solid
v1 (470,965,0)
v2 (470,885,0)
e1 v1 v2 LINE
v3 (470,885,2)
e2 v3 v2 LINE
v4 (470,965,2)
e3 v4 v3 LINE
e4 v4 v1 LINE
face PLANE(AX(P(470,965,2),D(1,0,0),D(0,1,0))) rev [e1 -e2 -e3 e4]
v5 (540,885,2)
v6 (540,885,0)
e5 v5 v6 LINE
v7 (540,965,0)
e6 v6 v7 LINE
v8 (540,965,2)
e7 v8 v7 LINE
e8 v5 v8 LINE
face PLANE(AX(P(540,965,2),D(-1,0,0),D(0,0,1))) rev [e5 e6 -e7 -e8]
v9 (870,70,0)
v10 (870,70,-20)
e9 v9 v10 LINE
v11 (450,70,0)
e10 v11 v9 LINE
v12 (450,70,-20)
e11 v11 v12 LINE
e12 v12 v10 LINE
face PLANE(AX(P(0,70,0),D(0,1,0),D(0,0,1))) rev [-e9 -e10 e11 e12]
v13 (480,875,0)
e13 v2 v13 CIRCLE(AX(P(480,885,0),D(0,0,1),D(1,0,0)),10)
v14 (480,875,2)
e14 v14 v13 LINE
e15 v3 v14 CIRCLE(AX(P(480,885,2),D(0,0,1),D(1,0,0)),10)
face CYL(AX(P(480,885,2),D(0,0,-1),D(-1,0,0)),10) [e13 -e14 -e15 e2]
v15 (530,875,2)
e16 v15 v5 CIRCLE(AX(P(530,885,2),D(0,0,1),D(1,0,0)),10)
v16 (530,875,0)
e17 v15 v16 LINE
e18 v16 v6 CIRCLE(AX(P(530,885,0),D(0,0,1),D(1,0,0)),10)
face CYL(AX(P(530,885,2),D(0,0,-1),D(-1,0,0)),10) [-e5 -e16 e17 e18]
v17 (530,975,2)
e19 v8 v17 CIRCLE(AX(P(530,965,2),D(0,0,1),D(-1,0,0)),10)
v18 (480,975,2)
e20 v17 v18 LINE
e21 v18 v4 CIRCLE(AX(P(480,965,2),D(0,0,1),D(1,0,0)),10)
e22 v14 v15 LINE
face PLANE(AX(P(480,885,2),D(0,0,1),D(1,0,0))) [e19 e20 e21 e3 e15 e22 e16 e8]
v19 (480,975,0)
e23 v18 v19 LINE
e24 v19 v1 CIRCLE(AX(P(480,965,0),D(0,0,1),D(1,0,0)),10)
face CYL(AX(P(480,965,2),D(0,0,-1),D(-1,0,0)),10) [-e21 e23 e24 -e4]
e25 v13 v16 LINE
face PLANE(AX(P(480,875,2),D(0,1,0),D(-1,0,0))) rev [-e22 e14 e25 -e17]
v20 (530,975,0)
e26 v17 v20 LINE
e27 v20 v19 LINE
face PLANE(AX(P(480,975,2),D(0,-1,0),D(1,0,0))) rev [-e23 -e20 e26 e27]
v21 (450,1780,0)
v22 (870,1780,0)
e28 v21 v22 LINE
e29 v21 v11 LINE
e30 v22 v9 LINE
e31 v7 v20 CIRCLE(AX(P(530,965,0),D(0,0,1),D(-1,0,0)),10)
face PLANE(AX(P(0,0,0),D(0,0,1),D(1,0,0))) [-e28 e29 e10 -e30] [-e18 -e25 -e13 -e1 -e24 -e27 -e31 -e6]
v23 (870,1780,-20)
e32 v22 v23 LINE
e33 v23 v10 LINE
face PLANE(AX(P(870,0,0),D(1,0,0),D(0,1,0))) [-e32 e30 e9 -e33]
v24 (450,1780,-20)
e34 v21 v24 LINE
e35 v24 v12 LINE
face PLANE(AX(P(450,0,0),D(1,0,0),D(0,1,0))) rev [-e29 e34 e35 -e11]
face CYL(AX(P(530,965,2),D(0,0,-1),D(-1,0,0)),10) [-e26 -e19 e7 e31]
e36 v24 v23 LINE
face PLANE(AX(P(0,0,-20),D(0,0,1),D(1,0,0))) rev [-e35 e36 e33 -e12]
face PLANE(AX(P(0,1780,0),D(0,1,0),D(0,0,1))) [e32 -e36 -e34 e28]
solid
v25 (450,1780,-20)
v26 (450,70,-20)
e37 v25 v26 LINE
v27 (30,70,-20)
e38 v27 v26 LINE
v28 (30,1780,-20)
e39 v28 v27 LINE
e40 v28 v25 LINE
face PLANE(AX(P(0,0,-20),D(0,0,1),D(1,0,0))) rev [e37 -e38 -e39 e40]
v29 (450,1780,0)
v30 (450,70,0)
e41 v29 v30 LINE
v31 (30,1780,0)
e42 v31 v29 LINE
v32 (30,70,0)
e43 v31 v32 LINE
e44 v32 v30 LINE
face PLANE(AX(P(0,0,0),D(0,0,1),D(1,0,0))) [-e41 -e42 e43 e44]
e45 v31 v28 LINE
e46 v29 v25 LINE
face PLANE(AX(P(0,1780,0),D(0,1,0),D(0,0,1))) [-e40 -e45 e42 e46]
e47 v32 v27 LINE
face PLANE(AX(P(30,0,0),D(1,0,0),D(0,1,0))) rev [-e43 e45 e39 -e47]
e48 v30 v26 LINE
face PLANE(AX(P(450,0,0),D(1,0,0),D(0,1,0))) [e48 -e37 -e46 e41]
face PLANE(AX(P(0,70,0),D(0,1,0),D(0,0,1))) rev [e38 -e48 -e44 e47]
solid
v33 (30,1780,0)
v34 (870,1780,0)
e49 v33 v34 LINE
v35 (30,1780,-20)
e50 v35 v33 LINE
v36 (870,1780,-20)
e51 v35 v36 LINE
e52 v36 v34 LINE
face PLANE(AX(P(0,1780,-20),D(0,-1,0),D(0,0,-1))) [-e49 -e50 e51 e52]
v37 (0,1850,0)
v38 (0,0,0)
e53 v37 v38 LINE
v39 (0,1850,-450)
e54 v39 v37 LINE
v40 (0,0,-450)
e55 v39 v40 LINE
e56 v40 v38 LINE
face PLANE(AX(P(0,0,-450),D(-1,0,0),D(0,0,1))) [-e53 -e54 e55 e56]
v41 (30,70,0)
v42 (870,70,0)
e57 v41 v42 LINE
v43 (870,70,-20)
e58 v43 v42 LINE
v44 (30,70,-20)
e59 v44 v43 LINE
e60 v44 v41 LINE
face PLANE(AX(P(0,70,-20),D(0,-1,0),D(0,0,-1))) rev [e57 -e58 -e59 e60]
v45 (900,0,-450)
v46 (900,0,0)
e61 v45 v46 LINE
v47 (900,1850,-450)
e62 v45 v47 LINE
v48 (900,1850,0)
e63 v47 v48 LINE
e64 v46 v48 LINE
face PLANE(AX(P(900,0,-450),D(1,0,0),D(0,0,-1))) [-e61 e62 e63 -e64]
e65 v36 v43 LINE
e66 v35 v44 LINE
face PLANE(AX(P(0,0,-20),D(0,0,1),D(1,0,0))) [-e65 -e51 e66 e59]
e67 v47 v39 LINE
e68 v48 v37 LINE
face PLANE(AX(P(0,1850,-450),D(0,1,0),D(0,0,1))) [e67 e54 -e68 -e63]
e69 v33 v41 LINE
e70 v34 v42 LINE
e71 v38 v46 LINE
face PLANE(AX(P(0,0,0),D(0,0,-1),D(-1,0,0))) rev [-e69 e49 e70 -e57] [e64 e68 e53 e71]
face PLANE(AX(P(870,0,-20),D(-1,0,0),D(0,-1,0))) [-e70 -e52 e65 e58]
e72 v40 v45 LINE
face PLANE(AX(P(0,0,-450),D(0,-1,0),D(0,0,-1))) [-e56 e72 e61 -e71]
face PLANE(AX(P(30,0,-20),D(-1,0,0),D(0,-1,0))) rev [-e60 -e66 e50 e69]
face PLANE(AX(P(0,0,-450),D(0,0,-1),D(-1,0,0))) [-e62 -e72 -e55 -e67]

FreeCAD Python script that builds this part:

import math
import FreeCAD as App
import Part
import Sketcher


def add_polygon(sketch, points):
    """Adds a closed chain of lines whose ends are joined by coincident constraints."""
    first, n = sketch.GeometryCount, len(points)
    for a, b in zip(points, points[1:] + points[:1]):
        sketch.addGeometry(Part.LineSegment(App.Vector(*a, 0), App.Vector(*b, 0)), False)
    for i in range(n):
        sketch.addConstraint(Sketcher.Constraint("Coincident", first + i, 2, first + (i + 1) % n, 1))

doc = App.newDocument("Part")
body = doc.addObject("PartDesign::Body", "Body")

# Sketch on XY plane
sketch1 = body.newObject("Sketcher::SketchObject", "Sketch")
sketch1.AttachmentSupport = (doc.getObject("XY_Plane"), [""])
sketch1.MapMode = "FlatFace"
add_polygon(sketch1, [(0, 1850), (0, 0), (900, 0), (900, 1850)])  # lines 0-3
sketch1.addConstraint(Sketcher.Constraint("Vertical", 0))
sketch1.addConstraint(Sketcher.Constraint("Horizontal", 1))
sketch1.addConstraint(Sketcher.Constraint("Vertical", 2))
sketch1.addConstraint(Sketcher.Constraint("Horizontal", 3))
sketch1.addConstraint(Sketcher.Constraint("Coincident", 0, 2, -1, 1))
sketch1.addConstraint(Sketcher.Constraint("DistanceX", 1, 1, 1, 2, 900.0))
sketch1.addConstraint(Sketcher.Constraint("DistanceY", 0, 2, 0, 1, 1850.0))
pad1 = body.newObject("PartDesign::Pad", "Pad")
pad1.Profile = sketch1
pad1.Length = 450
pad1.Reversed = True

# Sketch on XY plane
sketch2 = body.newObject("Sketcher::SketchObject", "Sketch001")
sketch2.AttachmentSupport = (doc.getObject("XY_Plane"), [""])
sketch2.MapMode = "FlatFace"
add_polygon(sketch2, [(30, 1780), (30, 70), (870, 70), (870, 1780)])  # lines 0-3
sketch2.addConstraint(Sketcher.Constraint("Vertical", 0))
sketch2.addConstraint(Sketcher.Constraint("Horizontal", 1))
sketch2.addConstraint(Sketcher.Constraint("Vertical", 2))
sketch2.addConstraint(Sketcher.Constraint("Horizontal", 3))
sketch2.addConstraint(Sketcher.Constraint("DistanceX", 1, 1, 1, 2, 840.0))
sketch2.addConstraint(Sketcher.Constraint("DistanceY", 0, 2, 0, 1, 1710.0))
sketch2.addConstraint(Sketcher.Constraint("DistanceX", -1, 1, 0, 2, 30.0))
sketch2.addConstraint(Sketcher.Constraint("DistanceY", -1, 1, 0, 2, 70.0))
pocket1 = body.newObject("PartDesign::Pocket", "Pocket")
pocket1.Profile = sketch2
pocket1.Length = 20
body2 = doc.addObject("PartDesign::Body", "Body001")

# Sketch on XY plane
sketch3 = body2.newObject("Sketcher::SketchObject", "Sketch002")
sketch3.AttachmentSupport = (doc.getObject("XY_Plane001"), [""])
sketch3.MapMode = "FlatFace"
sketch3.AttachmentOffset = App.Placement(App.Vector(0, 0, -20), App.Rotation())
add_polygon(sketch3, [(30, 1780), (30, 70), (450, 70), (450, 1780)])  # lines 0-3
sketch3.addConstraint(Sketcher.Constraint("Vertical", 0))
sketch3.addConstraint(Sketcher.Constraint("Horizontal", 1))
sketch3.addConstraint(Sketcher.Constraint("Vertical", 2))
sketch3.addConstraint(Sketcher.Constraint("Horizontal", 3))
sketch3.addConstraint(Sketcher.Constraint("DistanceX", 1, 1, 1, 2, 420.0))
sketch3.addConstraint(Sketcher.Constraint("DistanceY", 0, 2, 0, 1, 1710.0))
sketch3.addConstraint(Sketcher.Constraint("DistanceX", -1, 1, 0, 2, 30.0))
sketch3.addConstraint(Sketcher.Constraint("DistanceY", -1, 1, 0, 2, 70.0))
pad2 = body2.newObject("PartDesign::Pad", "Pad001")
pad2.Profile = sketch3
pad2.Length = 20
body3 = doc.addObject("PartDesign::Body", "Body002")

# Sketch on XY plane
sketch4 = body3.newObject("Sketcher::SketchObject", "Sketch003")
sketch4.AttachmentSupport = (doc.getObject("XY_Plane002"), [""])
sketch4.MapMode = "FlatFace"
sketch4.AttachmentOffset = App.Placement(App.Vector(0, 0, -20), App.Rotation())
add_polygon(sketch4, [(450, 1780), (450, 70), (870, 70), (870, 1780)])  # lines 0-3
sketch4.addConstraint(Sketcher.Constraint("Vertical", 0))
sketch4.addConstraint(Sketcher.Constraint("Horizontal", 1))
sketch4.addConstraint(Sketcher.Constraint("Vertical", 2))
sketch4.addConstraint(Sketcher.Constraint("Horizontal", 3))
sketch4.addConstraint(Sketcher.Constraint("DistanceX", 1, 1, 1, 2, 420.0))
sketch4.addConstraint(Sketcher.Constraint("DistanceY", 0, 2, 0, 1, 1710.0))
sketch4.addConstraint(Sketcher.Constraint("DistanceX", -1, 1, 0, 2, 450.0))
sketch4.addConstraint(Sketcher.Constraint("DistanceY", -1, 1, 0, 2, 70.0))
pad3 = body3.newObject("PartDesign::Pad", "Pad002")
pad3.Profile = sketch4
pad3.Length = 20

# Sketch on XY plane
sketch5 = body3.newObject("Sketcher::SketchObject", "Sketch004")
sketch5.AttachmentSupport = (doc.getObject("XY_Plane002"), [""])
sketch5.MapMode = "FlatFace"
sketch5.addGeometry(Part.LineSegment(App.Vector(530, 975, 0), App.Vector(480, 975, 0)), False)
sketch5.addGeometry(Part.ArcOfCircle(Part.Circle(App.Vector(480, 965, 0), App.Vector(0, 0, 1), 10), math.radians(90), math.radians(180)), False)
sketch5.addGeometry(Part.LineSegment(App.Vector(470, 965, 0), App.Vector(470, 885, 0)), False)
sketch5.addGeometry(Part.ArcOfCircle(Part.Circle(App.Vector(480, 885, 0), App.Vector(0, 0, 1), 10), math.radians(180), math.radians(270)), False)
sketch5.addGeometry(Part.LineSegment(App.Vector(480, 875, 0), App.Vector(530, 875, 0)), False)
sketch5.addGeometry(Part.ArcOfCircle(Part.Circle(App.Vector(530, 885, 0), App.Vector(0, 0, 1), 10), math.radians(-90), math.radians(0)), False)
sketch5.addGeometry(Part.LineSegment(App.Vector(540, 885, 0), App.Vector(540, 965, 0)), False)
sketch5.addGeometry(Part.ArcOfCircle(Part.Circle(App.Vector(530, 965, 0), App.Vector(0, 0, 1), 10), math.radians(0), math.radians(90)), False)
sketch5.addConstraint(Sketcher.Constraint("Tangent", 0, 2, 1, 1))
sketch5.addConstraint(Sketcher.Constraint("Tangent", 1, 2, 2, 1))
sketch5.addConstraint(Sketcher.Constraint("Tangent", 2, 2, 3, 1))
sketch5.addConstraint(Sketcher.Constraint("Tangent", 3, 2, 4, 1))
sketch5.addConstraint(Sketcher.Constraint("Tangent", 4, 2, 5, 1))
sketch5.addConstraint(Sketcher.Constraint("Tangent", 5, 2, 6, 1))
sketch5.addConstraint(Sketcher.Constraint("Tangent", 6, 2, 7, 1))
sketch5.addConstraint(Sketcher.Constraint("Tangent", 7, 2, 0, 1))
sketch5.addConstraint(Sketcher.Constraint("Horizontal", 0))
sketch5.addConstraint(Sketcher.Constraint("Vertical", 2))
sketch5.addConstraint(Sketcher.Constraint("Horizontal", 4))
sketch5.addConstraint(Sketcher.Constraint("Vertical", 6))
sketch5.addConstraint(Sketcher.Constraint("Equal", 1, 3))
sketch5.addConstraint(Sketcher.Constraint("Equal", 3, 5))
sketch5.addConstraint(Sketcher.Constraint("Equal", 5, 7))
sketch5.addConstraint(Sketcher.Constraint("Radius", 1, 10.0))
sketch5.addConstraint(Sketcher.Constraint("DistanceX", 0, 2, 0, 1, 50.0))
sketch5.addConstraint(Sketcher.Constraint("DistanceY", 2, 2, 2, 1, 80.0))
sketch5.addConstraint(Sketcher.Constraint("DistanceX", -1, 1, 1, 3, 480.0))
sketch5.addConstraint(Sketcher.Constraint("DistanceY", -1, 1, 1, 3, 965.0))
pad4 = body3.newObject("PartDesign::Pad", "Pad003")
pad4.Profile = sketch5
pad4.Length = 2

doc.recompute()
